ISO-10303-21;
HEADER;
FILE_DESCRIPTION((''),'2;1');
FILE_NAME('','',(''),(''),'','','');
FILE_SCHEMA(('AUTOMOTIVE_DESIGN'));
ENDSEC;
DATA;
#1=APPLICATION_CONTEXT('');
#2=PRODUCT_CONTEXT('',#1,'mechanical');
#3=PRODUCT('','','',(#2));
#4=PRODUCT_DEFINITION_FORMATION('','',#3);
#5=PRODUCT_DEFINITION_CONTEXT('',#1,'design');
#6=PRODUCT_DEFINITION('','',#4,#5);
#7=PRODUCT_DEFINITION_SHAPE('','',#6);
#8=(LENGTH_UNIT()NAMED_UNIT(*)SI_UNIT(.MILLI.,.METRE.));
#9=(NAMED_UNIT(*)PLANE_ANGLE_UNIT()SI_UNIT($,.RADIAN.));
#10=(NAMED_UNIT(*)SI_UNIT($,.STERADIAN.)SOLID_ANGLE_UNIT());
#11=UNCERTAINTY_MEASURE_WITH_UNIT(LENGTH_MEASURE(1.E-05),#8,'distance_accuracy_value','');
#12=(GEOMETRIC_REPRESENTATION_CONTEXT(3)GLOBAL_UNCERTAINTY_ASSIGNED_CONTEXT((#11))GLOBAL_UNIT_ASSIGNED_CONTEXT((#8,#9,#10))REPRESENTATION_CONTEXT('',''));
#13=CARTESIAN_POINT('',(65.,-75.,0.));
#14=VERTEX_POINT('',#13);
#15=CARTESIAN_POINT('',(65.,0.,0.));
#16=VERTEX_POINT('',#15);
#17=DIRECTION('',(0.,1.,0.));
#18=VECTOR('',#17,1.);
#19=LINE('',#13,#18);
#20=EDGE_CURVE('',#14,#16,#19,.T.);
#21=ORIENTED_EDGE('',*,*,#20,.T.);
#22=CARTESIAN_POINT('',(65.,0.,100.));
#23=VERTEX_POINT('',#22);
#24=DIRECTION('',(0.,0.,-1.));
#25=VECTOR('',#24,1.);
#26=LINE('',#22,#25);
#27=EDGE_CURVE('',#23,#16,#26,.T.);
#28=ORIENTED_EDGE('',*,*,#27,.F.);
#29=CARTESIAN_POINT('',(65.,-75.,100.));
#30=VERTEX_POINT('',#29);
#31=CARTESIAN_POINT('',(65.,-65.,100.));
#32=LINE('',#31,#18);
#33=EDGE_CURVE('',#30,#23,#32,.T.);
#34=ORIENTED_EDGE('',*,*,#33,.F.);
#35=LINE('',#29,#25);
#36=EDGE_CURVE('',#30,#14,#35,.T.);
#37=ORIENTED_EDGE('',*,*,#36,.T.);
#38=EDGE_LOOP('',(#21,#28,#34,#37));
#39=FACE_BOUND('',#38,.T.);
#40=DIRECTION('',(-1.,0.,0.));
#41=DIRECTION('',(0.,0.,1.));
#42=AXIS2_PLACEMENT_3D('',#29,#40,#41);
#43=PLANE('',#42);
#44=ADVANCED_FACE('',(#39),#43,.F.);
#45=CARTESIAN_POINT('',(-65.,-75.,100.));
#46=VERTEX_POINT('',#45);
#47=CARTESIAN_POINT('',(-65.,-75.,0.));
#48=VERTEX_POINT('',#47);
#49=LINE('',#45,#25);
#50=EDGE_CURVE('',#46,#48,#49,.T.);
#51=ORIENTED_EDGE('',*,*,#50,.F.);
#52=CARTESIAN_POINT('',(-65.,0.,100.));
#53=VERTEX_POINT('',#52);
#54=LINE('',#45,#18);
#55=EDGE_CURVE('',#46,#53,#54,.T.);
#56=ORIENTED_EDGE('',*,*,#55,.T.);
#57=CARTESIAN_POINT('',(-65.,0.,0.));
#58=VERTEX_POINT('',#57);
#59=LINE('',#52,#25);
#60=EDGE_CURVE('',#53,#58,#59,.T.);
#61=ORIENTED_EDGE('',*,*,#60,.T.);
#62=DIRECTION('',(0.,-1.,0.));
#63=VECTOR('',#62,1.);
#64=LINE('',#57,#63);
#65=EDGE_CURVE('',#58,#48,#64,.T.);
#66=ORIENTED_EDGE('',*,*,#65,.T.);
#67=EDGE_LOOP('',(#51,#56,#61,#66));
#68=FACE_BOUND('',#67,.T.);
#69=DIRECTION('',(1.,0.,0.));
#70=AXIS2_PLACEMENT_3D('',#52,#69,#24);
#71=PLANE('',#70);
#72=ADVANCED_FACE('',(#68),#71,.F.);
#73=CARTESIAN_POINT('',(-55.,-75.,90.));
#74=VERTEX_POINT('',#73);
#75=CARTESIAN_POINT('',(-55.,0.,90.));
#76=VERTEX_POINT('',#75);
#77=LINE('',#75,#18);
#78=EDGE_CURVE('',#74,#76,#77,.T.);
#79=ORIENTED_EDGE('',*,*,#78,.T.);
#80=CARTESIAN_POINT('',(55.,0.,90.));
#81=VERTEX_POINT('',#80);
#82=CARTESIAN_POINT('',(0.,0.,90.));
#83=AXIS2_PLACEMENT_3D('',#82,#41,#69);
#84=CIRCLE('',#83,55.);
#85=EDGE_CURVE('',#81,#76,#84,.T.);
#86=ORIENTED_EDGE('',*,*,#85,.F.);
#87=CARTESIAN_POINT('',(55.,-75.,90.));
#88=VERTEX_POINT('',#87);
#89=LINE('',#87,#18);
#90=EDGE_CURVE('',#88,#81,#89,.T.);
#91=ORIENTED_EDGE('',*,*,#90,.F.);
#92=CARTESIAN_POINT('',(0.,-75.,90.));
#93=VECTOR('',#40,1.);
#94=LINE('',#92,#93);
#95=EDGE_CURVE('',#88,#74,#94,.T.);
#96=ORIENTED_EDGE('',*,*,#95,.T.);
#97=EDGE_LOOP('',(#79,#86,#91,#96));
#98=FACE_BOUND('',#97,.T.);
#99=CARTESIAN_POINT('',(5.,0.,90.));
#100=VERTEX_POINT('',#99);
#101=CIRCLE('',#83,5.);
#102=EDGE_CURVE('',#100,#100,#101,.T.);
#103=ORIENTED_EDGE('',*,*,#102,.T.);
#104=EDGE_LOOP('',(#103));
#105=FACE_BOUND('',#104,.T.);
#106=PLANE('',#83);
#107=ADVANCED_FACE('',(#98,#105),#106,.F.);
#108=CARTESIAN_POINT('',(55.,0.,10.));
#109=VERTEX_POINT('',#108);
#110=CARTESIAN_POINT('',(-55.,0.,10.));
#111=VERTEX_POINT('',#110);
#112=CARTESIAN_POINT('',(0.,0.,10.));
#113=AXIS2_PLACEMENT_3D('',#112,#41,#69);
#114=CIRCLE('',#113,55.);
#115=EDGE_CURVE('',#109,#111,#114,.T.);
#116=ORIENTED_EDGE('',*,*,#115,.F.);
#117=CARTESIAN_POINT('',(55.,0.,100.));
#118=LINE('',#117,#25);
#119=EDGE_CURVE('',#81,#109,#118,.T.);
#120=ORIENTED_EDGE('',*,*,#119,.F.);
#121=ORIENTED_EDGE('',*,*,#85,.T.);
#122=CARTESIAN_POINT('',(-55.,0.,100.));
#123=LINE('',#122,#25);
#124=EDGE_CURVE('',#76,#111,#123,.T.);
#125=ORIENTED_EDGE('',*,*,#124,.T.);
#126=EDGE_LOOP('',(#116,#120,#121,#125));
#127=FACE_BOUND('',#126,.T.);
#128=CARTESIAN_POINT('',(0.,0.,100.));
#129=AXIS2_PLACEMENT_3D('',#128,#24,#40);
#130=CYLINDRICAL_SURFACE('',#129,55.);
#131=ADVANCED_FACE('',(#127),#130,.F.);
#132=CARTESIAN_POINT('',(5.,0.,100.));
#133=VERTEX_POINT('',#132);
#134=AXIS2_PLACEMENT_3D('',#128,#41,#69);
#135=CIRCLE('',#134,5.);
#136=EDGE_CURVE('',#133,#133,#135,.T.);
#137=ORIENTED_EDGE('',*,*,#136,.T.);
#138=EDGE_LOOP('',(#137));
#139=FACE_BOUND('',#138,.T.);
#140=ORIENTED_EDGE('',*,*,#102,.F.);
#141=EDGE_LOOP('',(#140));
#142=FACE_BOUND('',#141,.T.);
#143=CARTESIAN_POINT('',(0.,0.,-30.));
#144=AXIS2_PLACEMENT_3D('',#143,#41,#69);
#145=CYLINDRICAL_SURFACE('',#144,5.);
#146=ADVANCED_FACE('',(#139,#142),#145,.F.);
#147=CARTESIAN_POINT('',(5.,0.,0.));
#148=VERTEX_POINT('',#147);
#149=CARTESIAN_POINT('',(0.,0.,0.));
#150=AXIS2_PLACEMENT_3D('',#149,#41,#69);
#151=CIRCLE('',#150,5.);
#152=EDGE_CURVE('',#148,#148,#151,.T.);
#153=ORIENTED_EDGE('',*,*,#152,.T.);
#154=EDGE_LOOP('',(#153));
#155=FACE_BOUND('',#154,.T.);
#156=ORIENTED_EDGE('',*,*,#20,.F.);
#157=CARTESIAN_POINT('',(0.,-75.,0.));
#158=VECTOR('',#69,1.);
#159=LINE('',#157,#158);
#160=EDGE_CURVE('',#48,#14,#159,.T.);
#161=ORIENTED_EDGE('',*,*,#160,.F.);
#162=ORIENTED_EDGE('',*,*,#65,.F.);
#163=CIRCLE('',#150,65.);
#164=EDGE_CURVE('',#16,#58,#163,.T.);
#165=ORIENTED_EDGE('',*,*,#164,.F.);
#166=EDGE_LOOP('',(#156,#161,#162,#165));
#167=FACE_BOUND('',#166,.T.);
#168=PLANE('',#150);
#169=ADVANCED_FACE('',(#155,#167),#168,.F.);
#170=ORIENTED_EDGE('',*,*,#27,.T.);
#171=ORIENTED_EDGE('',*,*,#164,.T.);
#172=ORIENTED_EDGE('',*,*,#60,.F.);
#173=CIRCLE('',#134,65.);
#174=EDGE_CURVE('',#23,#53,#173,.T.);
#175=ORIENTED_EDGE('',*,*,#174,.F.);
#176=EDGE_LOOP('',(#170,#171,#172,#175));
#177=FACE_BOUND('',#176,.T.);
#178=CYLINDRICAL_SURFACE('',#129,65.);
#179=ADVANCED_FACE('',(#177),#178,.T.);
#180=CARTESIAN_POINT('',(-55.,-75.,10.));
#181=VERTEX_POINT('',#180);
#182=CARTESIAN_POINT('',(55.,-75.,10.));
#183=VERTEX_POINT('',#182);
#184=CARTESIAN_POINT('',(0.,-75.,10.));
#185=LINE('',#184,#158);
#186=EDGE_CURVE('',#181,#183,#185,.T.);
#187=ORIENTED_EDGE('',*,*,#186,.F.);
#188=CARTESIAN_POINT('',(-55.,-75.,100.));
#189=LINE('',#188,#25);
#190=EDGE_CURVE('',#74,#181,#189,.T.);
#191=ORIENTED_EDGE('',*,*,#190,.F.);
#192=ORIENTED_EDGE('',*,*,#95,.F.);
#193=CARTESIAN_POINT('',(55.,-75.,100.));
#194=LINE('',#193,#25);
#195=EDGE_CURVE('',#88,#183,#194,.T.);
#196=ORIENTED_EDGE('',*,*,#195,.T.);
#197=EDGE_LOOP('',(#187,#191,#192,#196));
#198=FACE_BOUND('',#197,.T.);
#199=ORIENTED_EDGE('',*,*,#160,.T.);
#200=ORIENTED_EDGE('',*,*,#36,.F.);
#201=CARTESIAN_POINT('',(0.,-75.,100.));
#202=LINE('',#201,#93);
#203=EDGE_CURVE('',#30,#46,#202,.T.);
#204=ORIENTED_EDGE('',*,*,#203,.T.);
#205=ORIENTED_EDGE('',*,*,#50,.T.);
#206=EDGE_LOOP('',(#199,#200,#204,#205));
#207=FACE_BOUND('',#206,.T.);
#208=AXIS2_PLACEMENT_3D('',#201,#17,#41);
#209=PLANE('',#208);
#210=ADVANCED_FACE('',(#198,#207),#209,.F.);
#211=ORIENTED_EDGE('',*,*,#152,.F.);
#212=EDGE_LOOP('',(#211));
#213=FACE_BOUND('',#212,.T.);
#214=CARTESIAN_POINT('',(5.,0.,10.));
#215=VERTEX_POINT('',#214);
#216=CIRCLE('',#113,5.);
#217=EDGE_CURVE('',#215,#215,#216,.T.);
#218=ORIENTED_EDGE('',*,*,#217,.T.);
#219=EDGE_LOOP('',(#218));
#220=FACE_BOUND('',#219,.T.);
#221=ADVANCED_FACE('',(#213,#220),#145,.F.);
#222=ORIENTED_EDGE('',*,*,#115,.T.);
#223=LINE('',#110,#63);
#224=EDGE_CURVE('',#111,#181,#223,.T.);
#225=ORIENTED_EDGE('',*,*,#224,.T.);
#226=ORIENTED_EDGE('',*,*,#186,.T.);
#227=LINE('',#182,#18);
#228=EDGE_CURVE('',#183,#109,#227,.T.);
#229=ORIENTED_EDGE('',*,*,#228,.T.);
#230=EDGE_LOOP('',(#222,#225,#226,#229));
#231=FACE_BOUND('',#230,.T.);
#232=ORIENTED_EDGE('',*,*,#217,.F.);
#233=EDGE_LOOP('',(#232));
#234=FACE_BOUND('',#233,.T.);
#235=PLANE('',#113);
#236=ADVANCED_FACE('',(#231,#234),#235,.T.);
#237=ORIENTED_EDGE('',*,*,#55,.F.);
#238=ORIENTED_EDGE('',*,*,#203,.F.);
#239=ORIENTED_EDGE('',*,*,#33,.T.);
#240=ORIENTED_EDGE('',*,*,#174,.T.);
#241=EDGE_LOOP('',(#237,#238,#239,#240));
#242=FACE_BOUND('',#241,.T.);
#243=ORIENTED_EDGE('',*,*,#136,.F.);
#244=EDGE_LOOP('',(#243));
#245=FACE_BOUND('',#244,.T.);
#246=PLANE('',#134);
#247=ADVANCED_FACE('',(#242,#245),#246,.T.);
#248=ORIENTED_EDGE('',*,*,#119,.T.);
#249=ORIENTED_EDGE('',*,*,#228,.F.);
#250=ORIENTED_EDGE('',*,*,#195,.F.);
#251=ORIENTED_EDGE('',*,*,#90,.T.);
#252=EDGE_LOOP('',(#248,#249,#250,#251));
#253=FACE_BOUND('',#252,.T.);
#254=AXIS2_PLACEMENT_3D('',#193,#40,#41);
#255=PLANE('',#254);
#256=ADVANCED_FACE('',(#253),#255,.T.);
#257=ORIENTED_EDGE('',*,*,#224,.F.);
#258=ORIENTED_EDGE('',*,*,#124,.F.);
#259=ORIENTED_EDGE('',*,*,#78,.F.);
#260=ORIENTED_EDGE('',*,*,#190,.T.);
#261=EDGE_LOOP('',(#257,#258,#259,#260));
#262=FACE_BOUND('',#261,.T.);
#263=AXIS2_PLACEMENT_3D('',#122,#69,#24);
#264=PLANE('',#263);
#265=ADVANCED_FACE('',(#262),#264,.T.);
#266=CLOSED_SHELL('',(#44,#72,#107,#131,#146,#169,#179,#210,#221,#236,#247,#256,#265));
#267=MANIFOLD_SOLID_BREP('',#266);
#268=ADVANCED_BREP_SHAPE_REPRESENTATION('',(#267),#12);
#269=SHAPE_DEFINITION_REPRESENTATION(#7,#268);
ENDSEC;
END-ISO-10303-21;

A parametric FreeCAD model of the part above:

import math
import FreeCAD as App
import Part
import Sketcher
Q = App.Units.Quantity


def faces_at(feature, points):
    """Names of the faces that lie closest to the given points."""
    faces = feature.Shape.Faces
    near = lambda p: min(range(len(faces)), key=lambda i: faces[i].distToShape(Part.Vertex(*p))[0])
    return sorted({f"Face{near(p) + 1}" for p in points})

doc = App.newDocument("Part")
body = doc.addObject("PartDesign::Body", "Body")

sketch1 = body.newObject("Sketcher::SketchObject", "Sketch")
sketch1.AttachmentSupport = (doc.getObject("XY_Plane"), [""])
sketch1.MapMode = "FlatFace"
sketch1.addGeometry([
    Part.LineSegment(App.Vector(-65, 0, 0), App.Vector(-65, -75, 0)),
    Part.LineSegment(App.Vector(-65, -75, 0), App.Vector(65, -75, 0)),
    Part.LineSegment(App.Vector(65, -75, 0), App.Vector(65, 0, 0)),
    Part.ArcOfCircle(Part.Circle(App.Vector(0, 0, 0), App.Vector(0, 0, 1), 65), math.radians(0), math.radians(180)),
], False)
sketch1.addConstraint([
    Sketcher.Constraint("Coincident", 0, 2, 1, 1),
    Sketcher.Constraint("Coincident", 1, 2, 2, 1),
    Sketcher.Constraint("Tangent", 2, 2, 3, 1),
    Sketcher.Constraint("Tangent", 3, 2, 0, 1),
    Sketcher.Constraint("Vertical", 0),
    Sketcher.Constraint("Horizontal", 1),
    Sketcher.Constraint("Vertical", 2),
    Sketcher.Constraint("Coincident", 3, 3, -1, 1),
    Sketcher.Constraint("Radius", 3, Q("65 mm")),
    Sketcher.Constraint("DistanceY", 0, 2, 0, 1, Q("75 mm")),
])
pad1 = body.newObject("PartDesign::Pad", "Pad")
pad1.Profile = sketch1
pad1.Length = 100
doc.recompute()

thickness = body.newObject("PartDesign::Thickness", "Thickness")
thickness.Base = (pad1, faces_at(pad1, [(0, -75, 50)]))
thickness.Value = 10
thickness.Reversed = True
thickness.Join = "Intersection"

sketch2 = body.newObject("Sketcher::SketchObject", "Sketch001")
sketch2.AttachmentSupport = (doc.getObject("XY_Plane"), [""])
sketch2.MapMode = "FlatFace"
sketch2.AttachmentOffset = App.Placement(App.Vector(0, 0, 100), App.Rotation())
sketch2.addGeometry(Part.Circle(App.Vector(0, 0, 0), App.Vector(0, 0, 1), 5), False)
sketch2.addConstraint([
    Sketcher.Constraint("Coincident", 0, 3, -1, 1),
    Sketcher.Constraint("Diameter", 0, Q("10 mm")),
])
pocket1 = body.newObject("PartDesign::Pocket", "Pocket")
pocket1.Profile = sketch2
pocket1.Length = 130

doc.recompute()
